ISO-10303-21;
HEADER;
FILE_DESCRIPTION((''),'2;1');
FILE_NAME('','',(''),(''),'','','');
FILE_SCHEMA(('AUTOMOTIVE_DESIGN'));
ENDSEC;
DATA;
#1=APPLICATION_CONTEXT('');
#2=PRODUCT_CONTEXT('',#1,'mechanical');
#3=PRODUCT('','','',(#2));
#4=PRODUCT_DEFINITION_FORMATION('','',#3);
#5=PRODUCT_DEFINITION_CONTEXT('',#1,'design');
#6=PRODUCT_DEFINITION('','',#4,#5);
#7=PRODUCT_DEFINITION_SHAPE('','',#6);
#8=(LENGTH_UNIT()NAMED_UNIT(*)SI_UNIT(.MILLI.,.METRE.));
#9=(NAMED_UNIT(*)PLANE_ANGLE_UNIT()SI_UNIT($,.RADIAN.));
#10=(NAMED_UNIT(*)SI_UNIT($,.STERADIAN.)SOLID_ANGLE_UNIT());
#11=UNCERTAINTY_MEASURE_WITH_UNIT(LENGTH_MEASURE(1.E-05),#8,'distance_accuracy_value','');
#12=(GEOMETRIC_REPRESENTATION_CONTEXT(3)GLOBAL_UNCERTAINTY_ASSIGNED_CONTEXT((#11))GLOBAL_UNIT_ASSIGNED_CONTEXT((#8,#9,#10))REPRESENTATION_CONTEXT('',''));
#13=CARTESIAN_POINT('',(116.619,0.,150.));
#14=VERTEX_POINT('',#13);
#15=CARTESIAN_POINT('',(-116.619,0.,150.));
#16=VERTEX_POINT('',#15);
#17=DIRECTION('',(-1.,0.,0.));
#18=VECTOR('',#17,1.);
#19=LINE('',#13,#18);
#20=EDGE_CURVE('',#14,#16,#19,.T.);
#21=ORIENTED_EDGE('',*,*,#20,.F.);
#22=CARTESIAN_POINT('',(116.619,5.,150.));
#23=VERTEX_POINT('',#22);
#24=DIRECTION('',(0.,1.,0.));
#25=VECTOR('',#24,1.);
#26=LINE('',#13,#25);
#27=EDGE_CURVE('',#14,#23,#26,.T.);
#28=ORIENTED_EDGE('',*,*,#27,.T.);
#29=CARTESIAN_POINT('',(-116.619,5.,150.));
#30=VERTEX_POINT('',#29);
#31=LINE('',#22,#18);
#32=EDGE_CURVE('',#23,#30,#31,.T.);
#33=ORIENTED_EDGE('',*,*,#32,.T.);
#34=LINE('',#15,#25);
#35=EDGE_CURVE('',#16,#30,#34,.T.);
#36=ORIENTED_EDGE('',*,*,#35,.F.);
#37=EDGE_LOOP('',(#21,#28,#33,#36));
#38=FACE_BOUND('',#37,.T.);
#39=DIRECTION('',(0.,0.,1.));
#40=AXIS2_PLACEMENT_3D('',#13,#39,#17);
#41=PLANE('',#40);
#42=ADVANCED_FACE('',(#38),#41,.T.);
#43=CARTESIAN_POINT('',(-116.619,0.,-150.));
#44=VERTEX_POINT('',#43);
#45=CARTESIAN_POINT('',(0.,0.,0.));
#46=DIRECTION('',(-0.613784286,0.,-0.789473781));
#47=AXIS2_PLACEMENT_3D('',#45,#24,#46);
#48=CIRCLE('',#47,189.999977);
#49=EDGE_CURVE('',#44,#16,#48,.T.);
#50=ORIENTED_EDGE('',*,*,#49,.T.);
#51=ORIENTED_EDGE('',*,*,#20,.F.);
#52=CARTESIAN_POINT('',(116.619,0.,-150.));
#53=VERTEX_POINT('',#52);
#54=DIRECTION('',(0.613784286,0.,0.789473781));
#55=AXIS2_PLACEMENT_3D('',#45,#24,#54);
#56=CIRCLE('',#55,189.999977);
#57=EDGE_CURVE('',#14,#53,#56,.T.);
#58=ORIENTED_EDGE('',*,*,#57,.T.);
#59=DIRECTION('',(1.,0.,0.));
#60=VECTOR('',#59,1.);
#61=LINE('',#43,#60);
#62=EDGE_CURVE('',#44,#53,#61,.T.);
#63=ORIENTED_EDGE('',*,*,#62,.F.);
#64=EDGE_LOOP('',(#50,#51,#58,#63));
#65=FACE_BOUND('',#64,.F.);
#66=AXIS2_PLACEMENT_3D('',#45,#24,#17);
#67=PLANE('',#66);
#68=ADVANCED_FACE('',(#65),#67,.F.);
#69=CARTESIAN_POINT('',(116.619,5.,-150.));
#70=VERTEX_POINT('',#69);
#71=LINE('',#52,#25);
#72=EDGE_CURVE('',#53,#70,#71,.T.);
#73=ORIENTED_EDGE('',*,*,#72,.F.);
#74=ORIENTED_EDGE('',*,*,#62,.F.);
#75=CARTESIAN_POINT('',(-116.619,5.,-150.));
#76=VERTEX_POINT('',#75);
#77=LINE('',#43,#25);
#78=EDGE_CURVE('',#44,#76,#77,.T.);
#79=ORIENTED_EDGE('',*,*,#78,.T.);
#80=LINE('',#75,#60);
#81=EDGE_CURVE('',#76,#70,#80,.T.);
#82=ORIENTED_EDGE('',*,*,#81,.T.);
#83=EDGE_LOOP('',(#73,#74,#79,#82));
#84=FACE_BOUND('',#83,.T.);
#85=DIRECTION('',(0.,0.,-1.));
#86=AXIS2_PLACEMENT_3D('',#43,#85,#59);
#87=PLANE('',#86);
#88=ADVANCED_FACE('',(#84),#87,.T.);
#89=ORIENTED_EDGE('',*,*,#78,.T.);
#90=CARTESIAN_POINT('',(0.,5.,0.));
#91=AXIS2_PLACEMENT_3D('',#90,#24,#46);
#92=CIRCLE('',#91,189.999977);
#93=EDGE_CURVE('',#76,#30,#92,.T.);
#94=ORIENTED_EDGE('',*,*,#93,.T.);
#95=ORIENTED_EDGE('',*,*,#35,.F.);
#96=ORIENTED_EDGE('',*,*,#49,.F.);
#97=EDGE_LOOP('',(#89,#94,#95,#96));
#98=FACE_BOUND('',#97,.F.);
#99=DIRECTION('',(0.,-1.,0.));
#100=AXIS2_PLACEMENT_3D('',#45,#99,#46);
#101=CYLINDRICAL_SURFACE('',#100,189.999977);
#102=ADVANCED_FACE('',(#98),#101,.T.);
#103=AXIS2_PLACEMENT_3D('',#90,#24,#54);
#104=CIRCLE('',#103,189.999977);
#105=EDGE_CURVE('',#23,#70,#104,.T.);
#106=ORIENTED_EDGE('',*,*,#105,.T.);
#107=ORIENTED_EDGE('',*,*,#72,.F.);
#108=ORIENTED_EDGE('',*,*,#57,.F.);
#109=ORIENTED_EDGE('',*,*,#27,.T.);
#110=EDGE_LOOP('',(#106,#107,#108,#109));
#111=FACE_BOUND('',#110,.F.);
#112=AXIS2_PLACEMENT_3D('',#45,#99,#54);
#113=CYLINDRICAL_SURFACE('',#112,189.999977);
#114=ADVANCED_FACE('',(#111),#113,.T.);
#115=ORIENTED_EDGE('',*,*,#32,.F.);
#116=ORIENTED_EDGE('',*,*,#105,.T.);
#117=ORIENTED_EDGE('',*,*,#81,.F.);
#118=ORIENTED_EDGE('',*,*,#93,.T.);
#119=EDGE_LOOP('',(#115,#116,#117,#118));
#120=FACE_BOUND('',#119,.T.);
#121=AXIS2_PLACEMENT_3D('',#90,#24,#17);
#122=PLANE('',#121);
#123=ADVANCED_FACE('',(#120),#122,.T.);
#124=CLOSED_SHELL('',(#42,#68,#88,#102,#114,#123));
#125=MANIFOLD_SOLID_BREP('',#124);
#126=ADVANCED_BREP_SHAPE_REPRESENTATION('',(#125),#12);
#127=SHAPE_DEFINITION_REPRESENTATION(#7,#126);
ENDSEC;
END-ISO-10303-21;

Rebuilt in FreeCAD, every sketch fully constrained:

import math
import FreeCAD as App
import Part
import Sketcher

V = App.Vector
Q = App.Units.Quantity

doc = App.newDocument("Part")
body = doc.addObject("PartDesign::Body", "Body")

sketch1 = doc.addObject("Sketcher::SketchObject", "Sketch")
body.addObject(sketch1)
sketch1.AttachmentSupport = (doc.XZ_Plane, [""])
sketch1.MapMode = "FlatFace"
sketch1.addGeometry([
    Part.LineSegment(V(-116.619, 150, 0), V(116.619, 150, 0)),
    Part.ArcOfCircle(Part.Circle(V(0, 0, 0), V(0, 0, 1), 189.999977), math.radians(-52.136363), math.radians(52.136363)),
    Part.LineSegment(V(116.619, -150, 0), V(-116.619, -150, 0)),
    Part.ArcOfCircle(Part.Circle(V(0, 0, 0), V(0, 0, 1), 189.999977), math.radians(127.863637), math.radians(232.136363)),
], False)
sketch1.addConstraint([
    Sketcher.Constraint("Coincident", 0, 2, 1, 2),
    Sketcher.Constraint("Coincident", 1, 1, 2, 1),
    Sketcher.Constraint("Coincident", 2, 2, 3, 2),
    Sketcher.Constraint("Coincident", 3, 1, 0, 1),
    Sketcher.Constraint("Horizontal", 0),
    Sketcher.Constraint("Horizontal", 2),
    Sketcher.Constraint("Coincident", 1, 3, -1, 1),
    Sketcher.Constraint("Coincident", 3, 3, -1, 1),
    Sketcher.Constraint("Equal", 1, 3),
    Sketcher.Constraint("Vertical", 0, 2, 1, 1),
    Sketcher.Constraint("Radius", 1, Q("190 mm")),
    Sketcher.Constraint("DistanceY", 1, 1, 0, 2, Q("300 mm")),
])
pad1 = doc.addObject("PartDesign::Pad", "Pad")
body.addObject(pad1)
pad1.Profile = sketch1
pad1.Length = 5
pad1.Reversed = True

doc.recompute()
